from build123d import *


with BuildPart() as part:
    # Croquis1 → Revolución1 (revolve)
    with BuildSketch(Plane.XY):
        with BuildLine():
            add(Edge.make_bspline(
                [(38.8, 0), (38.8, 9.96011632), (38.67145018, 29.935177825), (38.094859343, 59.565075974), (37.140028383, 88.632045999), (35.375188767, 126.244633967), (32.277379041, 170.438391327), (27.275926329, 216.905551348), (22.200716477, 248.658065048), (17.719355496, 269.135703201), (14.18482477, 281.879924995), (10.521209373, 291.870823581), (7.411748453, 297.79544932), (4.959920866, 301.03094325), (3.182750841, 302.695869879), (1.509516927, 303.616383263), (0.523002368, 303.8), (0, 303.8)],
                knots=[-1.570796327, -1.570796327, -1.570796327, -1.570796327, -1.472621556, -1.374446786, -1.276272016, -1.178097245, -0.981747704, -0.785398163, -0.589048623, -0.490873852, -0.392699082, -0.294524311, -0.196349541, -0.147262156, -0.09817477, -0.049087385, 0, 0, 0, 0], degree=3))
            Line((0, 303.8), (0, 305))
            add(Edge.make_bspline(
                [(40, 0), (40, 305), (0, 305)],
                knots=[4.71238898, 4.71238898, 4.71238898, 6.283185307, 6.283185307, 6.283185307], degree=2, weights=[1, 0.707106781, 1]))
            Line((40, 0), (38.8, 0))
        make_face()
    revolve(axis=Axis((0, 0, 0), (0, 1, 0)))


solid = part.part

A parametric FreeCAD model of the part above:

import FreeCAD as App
import Part
import Sketcher
from FreeCAD import Vector

doc = App.newDocument("Part")
params = doc.addObject("Spreadsheet::Sheet", "Params")
for row, (alias, value) in enumerate([
    ("revolution_angle", "360 deg"),
], start=1):
    params.set(f"A{row}", alias)
    params.set(f"B{row}", "=" + value)
    params.setAlias(f"B{row}", alias)

body = doc.addObject("PartDesign::Body", "Body")

sketch1 = body.newObject("Sketcher::SketchObject", "Sketch")
sketch1.AttachmentSupport = (doc.getObject("XY_Plane"), [""])
sketch1.MapMode = "FlatFace"
sketch1.addGeometry(Part.BSplineCurve([Vector(38.8, 0, 0), Vector(38.8, 9.960116, 0), Vector(38.67145, 29.935178, 0), Vector(38.094859, 59.565076, 0), Vector(37.140028, 88.632046, 0), Vector(35.375189, 126.244634, 0), Vector(32.277379, 170.438391, 0), Vector(27.275926, 216.905551, 0), Vector(22.200716, 248.658065, 0), Vector(17.719355, 269.135703, 0), Vector(14.184825, 281.879925, 0), Vector(10.521209, 291.870824, 0), Vector(7.411748, 297.795449, 0), Vector(4.959921, 301.030943, 0), Vector(3.182751, 302.69587, 0), Vector(1.509517, 303.616383, 0), Vector(0.523002, 303.8, 0), Vector(0, 303.8, 0)], [4, 1, 1, 1, 1, 1, 1, 1, 1, 1, 1, 1, 1, 1, 1, 4], [-1.570796327, -1.472621556, -1.374446786, -1.276272016, -1.178097245, -0.981747704, -0.785398163, -0.589048623, -0.490873852, -0.392699082, -0.294524311, -0.196349541, -0.147262156, -0.09817477, -0.049087385, 0], False, 3, [1, 1, 1, 1, 1, 1, 1, 1, 1, 1, 1, 1, 1, 1, 1, 1, 1, 1], False), False)
sketch1.addGeometry(Part.LineSegment(Vector(38.8, 0, 0), Vector(40, 0, 0)), False)
sketch1.addGeometry(Part.BSplineCurve([Vector(40, 0, 0), Vector(40, 305, 0), Vector(0, 305, 0)], [3, 3], [4.71238898, 6.283185307], False, 2, [1, 0.707106781, 1], False), False)
sketch1.addGeometry(Part.LineSegment(Vector(0, 305, 0), Vector(0, 303.8, 0)), False)
sketch1.addConstraint(Sketcher.Constraint("Block", 0))
sketch1.addConstraint(Sketcher.Constraint("Block", 2))
sketch1.addConstraint(Sketcher.Constraint("Coincident", 0, 1, 1, 1))
sketch1.addConstraint(Sketcher.Constraint("Coincident", 1, 2, 2, 1))
sketch1.addConstraint(Sketcher.Constraint("Coincident", 2, 2, 3, 1))
sketch1.addConstraint(Sketcher.Constraint("Coincident", 3, 2, 0, 2))
revolution = body.newObject("PartDesign::Revolution", "Revolution")
revolution.Profile = sketch1
revolution.ReferenceAxis = (sketch1, ["V_Axis"])
revolution.setExpression("Angle", "Params.revolution_angle")

doc.recompute()
